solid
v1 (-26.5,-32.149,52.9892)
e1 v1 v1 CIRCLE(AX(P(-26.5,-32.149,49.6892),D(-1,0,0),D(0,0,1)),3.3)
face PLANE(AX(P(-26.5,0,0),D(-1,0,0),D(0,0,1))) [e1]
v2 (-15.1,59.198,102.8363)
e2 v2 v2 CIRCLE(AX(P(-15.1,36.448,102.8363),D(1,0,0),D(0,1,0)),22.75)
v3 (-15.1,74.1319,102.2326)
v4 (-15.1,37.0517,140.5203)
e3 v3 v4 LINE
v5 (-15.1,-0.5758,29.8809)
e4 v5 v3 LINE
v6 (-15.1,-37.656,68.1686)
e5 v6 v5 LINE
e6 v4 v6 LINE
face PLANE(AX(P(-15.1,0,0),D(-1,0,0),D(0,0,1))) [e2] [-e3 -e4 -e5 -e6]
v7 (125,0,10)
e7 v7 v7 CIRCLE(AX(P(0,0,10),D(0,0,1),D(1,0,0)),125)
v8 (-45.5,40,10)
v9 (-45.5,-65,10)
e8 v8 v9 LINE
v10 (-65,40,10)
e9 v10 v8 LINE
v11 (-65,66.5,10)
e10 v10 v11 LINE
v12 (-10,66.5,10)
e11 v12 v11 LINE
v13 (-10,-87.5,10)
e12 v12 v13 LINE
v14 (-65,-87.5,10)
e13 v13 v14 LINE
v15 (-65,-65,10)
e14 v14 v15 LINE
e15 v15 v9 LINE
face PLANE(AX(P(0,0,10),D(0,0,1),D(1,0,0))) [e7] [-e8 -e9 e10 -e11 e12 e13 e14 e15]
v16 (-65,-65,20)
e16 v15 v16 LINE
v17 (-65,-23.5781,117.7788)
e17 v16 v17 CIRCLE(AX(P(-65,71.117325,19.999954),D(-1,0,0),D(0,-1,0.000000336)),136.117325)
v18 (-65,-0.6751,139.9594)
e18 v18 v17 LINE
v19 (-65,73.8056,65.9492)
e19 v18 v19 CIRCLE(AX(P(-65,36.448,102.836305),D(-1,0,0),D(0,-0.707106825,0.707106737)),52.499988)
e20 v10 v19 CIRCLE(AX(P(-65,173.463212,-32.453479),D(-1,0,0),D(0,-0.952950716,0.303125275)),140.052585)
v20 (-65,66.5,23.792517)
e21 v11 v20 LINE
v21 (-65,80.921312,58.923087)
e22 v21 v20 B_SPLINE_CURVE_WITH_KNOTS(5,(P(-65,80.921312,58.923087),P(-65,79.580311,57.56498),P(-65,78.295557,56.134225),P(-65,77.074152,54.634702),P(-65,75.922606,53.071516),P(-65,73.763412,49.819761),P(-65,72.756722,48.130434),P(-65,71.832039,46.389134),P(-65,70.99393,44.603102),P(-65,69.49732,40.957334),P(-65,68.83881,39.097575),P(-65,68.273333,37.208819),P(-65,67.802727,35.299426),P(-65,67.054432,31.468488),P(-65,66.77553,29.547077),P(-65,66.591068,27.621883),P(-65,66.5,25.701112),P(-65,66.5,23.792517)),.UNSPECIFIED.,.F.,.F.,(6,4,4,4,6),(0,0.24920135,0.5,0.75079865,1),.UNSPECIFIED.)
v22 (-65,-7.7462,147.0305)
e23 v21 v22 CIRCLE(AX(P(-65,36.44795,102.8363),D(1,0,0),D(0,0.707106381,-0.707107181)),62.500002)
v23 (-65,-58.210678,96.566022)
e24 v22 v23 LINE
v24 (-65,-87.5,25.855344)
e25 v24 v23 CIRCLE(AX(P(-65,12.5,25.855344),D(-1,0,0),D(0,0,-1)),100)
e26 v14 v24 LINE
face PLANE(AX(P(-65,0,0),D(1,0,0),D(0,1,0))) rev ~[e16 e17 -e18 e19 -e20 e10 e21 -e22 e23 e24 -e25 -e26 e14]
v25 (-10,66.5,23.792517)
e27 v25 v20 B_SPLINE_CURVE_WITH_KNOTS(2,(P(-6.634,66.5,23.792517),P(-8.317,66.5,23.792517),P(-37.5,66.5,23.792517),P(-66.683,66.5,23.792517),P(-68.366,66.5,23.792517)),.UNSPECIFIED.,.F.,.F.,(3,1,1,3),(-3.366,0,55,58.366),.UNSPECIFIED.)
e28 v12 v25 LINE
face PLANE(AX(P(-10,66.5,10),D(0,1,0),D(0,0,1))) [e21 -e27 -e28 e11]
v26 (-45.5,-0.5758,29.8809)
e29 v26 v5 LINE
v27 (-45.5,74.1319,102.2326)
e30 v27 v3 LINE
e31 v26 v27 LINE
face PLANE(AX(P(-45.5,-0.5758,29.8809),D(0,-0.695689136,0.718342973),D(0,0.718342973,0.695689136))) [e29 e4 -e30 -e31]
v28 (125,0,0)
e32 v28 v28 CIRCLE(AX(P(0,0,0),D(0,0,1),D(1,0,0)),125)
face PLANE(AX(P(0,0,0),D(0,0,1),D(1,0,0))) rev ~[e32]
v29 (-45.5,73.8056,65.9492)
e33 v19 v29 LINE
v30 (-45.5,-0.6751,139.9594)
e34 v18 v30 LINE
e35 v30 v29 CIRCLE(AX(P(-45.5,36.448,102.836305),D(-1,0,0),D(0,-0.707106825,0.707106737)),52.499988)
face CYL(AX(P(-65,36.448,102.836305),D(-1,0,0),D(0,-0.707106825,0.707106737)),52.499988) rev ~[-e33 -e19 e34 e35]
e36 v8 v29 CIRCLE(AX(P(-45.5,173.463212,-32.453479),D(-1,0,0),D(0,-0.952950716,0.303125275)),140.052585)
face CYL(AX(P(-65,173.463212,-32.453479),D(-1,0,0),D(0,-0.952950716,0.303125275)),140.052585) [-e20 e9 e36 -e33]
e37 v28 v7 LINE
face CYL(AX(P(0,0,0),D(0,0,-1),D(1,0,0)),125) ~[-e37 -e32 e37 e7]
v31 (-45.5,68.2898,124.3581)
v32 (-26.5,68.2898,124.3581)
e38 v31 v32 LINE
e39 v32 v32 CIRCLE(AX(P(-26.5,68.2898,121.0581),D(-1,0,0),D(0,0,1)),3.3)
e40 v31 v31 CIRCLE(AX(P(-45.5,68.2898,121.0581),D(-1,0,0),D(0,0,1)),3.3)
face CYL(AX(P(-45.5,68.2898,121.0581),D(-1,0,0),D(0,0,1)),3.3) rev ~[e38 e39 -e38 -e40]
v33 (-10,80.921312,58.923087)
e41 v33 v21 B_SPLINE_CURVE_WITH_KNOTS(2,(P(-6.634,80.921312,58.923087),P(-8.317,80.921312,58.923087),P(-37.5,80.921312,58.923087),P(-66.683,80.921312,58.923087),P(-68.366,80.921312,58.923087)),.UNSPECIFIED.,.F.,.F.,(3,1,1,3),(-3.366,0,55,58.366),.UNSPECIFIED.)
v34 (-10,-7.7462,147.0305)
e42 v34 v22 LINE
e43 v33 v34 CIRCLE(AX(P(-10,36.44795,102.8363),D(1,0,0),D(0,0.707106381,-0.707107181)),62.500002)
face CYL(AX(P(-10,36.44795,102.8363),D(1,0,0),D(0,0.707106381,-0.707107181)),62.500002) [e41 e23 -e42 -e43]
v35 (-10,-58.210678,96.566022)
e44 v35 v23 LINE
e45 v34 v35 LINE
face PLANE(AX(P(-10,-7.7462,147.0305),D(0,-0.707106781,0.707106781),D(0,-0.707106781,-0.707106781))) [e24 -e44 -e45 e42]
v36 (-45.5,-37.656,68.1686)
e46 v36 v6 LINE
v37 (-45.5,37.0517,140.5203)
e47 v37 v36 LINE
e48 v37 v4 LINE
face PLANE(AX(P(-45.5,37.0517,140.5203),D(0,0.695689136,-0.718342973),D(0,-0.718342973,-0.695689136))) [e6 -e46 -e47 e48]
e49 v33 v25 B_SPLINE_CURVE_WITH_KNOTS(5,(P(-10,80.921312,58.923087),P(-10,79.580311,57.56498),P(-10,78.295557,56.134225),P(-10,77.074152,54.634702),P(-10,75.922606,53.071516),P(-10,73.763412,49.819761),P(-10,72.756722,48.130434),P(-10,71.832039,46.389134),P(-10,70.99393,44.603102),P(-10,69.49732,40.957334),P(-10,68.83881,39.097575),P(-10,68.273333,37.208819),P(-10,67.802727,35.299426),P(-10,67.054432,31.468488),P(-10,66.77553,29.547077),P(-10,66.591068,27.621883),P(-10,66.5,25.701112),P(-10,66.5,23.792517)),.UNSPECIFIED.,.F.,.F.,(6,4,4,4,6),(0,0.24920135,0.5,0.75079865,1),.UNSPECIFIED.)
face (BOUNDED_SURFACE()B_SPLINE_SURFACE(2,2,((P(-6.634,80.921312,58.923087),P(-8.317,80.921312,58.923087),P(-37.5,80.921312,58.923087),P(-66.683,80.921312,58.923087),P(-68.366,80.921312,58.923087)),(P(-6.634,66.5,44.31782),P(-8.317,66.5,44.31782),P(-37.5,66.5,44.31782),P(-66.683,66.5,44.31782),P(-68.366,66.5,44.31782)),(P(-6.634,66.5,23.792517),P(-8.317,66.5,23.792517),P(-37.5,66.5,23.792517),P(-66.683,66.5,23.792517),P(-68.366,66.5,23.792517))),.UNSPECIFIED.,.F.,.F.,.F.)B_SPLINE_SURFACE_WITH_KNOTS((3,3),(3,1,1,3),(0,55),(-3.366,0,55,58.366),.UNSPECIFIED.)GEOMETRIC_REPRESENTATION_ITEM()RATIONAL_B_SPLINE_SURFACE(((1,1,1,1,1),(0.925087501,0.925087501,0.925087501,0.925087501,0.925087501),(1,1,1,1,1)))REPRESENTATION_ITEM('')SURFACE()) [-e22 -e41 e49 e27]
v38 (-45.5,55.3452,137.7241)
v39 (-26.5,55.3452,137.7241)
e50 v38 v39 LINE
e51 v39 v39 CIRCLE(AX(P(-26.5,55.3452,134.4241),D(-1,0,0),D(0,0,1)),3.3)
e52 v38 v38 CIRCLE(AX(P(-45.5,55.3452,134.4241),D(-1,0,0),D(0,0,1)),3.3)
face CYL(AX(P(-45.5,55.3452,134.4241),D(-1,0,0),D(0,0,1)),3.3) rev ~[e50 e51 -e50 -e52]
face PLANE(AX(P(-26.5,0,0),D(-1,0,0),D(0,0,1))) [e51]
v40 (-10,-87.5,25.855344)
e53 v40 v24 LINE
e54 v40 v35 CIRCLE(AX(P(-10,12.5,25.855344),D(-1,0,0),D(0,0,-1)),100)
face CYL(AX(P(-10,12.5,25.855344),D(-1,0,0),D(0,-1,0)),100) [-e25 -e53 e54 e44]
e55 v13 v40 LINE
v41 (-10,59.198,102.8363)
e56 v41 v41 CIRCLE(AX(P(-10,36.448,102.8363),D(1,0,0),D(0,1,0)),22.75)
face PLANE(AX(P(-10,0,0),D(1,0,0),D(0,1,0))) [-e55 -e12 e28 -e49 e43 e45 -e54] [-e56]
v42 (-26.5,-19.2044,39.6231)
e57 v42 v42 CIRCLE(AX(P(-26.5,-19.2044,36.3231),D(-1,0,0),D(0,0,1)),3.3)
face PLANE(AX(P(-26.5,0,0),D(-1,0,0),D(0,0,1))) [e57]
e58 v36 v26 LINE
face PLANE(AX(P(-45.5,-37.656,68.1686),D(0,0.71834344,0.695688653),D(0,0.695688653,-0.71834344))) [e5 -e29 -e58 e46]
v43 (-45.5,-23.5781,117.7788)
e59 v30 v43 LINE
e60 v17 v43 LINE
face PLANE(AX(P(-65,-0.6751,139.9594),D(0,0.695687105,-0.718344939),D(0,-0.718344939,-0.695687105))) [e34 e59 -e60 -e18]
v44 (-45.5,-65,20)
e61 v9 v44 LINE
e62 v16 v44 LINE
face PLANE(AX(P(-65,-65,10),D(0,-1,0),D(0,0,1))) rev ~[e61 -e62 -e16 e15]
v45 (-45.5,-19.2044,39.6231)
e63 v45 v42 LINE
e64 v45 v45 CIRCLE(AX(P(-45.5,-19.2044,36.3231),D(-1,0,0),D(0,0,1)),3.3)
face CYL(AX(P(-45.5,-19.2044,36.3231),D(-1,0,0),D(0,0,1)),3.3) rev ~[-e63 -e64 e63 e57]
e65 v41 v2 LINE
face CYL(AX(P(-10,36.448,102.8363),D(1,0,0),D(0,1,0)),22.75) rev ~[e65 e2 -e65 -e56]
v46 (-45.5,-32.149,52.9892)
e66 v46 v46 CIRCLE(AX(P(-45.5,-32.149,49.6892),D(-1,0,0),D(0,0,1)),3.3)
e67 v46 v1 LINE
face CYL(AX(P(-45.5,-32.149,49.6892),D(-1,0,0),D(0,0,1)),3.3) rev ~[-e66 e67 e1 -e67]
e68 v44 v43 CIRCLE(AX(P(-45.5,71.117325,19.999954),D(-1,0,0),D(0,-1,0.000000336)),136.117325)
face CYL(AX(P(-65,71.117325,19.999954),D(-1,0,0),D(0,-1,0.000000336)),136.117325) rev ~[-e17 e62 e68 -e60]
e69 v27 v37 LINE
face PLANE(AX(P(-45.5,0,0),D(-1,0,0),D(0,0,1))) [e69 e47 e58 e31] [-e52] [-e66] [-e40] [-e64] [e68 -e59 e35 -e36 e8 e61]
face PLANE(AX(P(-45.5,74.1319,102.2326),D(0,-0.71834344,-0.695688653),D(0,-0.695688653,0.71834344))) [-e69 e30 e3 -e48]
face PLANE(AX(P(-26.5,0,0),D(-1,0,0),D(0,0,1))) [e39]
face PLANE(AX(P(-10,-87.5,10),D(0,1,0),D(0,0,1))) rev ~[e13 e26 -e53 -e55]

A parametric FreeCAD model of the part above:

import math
import FreeCAD as App
import Part
import Sketcher

V = App.Vector
Q = App.Units.Quantity


def edges_at(feature, points):
    """Names of the edges that pass closest to the given points."""
    edges = feature.Shape.Edges
    near = lambda p: min(range(len(edges)), key=lambda i: edges[i].distToShape(Part.Vertex(*p))[0])
    return sorted({f"Edge{near(p) + 1}" for p in points})


def add_polygon(sketch, points):
    """Adds a closed chain of lines whose ends are joined by coincident constraints."""
    first, n = sketch.GeometryCount, len(points)
    for a, b in zip(points, points[1:] + points[:1]):
        sketch.addGeometry(Part.LineSegment(App.Vector(*a, 0), App.Vector(*b, 0)), False)
    for i in range(n):
        sketch.addConstraint(Sketcher.Constraint("Coincident", first + i, 2, first + (i + 1) % n, 1))

doc = App.newDocument("Part")
params = doc.addObject("Spreadsheet::Sheet", "Params")
for row, (alias, value) in enumerate([
    ("sketch1_diameter", "250 mm"),
    ("pad1_length", "10 mm"),
    ("sketch2_diameter", "45.5 mm"),
    ("sketch2_radius", "62.5 mm"),
    ("sketch2_length", "20 mm"),
    ("sketch2_height", "34.5 mm"),
    ("pad2_length", "55 mm"),
    ("fillet_radius", "100 mm"),
    ("fillet2_radius", "50 mm"),
    ("sketch3_height", "10 mm"),
    ("sketch3_radius", "52.5 mm"),
    ("pocket1_length", "19.5 mm"),
    ("sketch4_length", "104 mm"),
    ("sketch4_length2", "53.3 mm"),
    ("pocket2_length", "30.4 mm"),
    ("sketch5_diameter", "6.6 mm"),
    ("pocket3_length", "19 mm"),
], start=1):
    params.set(f"A{row}", alias)
    params.set(f"B{row}", "=" + value)
    params.setAlias(f"B{row}", alias)

body = doc.addObject("PartDesign::Body", "Body")

# Sketch on XY plane
sketch1 = body.newObject("Sketcher::SketchObject", "Sketch")
sketch1.AttachmentSupport = (doc.getObject("XY_Plane"), [""])
sketch1.MapMode = "FlatFace"
sketch1.addGeometry(Part.Circle(V(0, 0, 0), V(0, 0, 1), 125), False)
sketch1.addConstraint([
    Sketcher.Constraint("Coincident", 0, 3, -1, 1),
    Sketcher.Constraint("Diameter", 0, Q("250 mm")),
])
sketch1.setExpression("Constraints[1]", "Params.sketch1_diameter")
pad1 = body.newObject("PartDesign::Pad", "Pad")
pad1.Profile = sketch1
pad1.setExpression("Length", "Params.pad1_length")

# Sketch on YZ plane
sketch2 = body.newObject("Sketcher::SketchObject", "Sketch001")
sketch2.AttachmentSupport = (doc.getObject("YZ_Plane"), [""])
sketch2.MapMode = "FlatFace"
sketch2.AttachmentOffset = App.Placement(V(0, 0, -10), App.Rotation())
sketch2.addGeometry([
    Part.LineSegment(V(-88, 10, 0), V(66, 10, 0)),  # 0
    Part.LineSegment(V(66, 10, 0), V(66, 44, 0)),  # 1
    Part.LineSegment(V(66, 44, 0), V(81, 59, 0)),  # 2
    Part.ArcOfCircle(Part.Circle(V(36, 103, 0), V(0, 0, 1), 62), math.radians(-45), math.radians(135)),  # 3
    Part.LineSegment(V(-8, 147, 0), V(-88, 67, 0)),  # 4
    Part.LineSegment(V(-88, 67, 0), V(-88, 10, 0)),  # 5
    Part.Circle(V(36, 103, 0), V(0, 0, 1), 23),  # 6
], False)
sketch2.addConstraint([
    Sketcher.Constraint("Coincident", 0, 2, 1, 1),
    Sketcher.Constraint("Coincident", 1, 2, 2, 1),
    Sketcher.Constraint("Tangent", 2, 2, 3, 1),
    Sketcher.Constraint("Tangent", 3, 2, 4, 1),
    Sketcher.Constraint("Coincident", 4, 2, 5, 1),
    Sketcher.Constraint("Coincident", 5, 2, 0, 1),
    Sketcher.Constraint("Horizontal", 0),
    Sketcher.Constraint("Vertical", 1),
    Sketcher.Constraint("Vertical", 5),
    Sketcher.Constraint("Coincident", 6, 3, 3, 3),
    Sketcher.Constraint("Parallel", 2, 4),
    Sketcher.Constraint("Diameter", 6, Q("45.5 mm")),
    Sketcher.Constraint("Radius", 3, Q("62.5 mm")),
    Sketcher.Constraint("Angle", 2, Q("45 deg")),
    Sketcher.Constraint("Distance", 2, Q("20 mm")),
    Sketcher.Constraint("DistanceY", 1, 1, 1, 2, Q("34.5 mm")),
    Sketcher.Constraint("DistanceX", -1, 1, 0, 2, Q("66.5 mm")),
    Sketcher.Constraint("DistanceX", 4, 2, -1, 1, Q("87.5 mm")),
    Sketcher.Constraint("DistanceY", -1, 1, 0, 2, Q("10 mm")),
])
sketch2.setExpression("Constraints[11]", "Params.sketch2_diameter")
sketch2.setExpression("Constraints[12]", "Params.sketch2_radius")
sketch2.setExpression("Constraints[14]", "Params.sketch2_length")
sketch2.setExpression("Constraints[15]", "Params.sketch2_height")
pad2 = body.newObject("PartDesign::Pad", "Pad001")
pad2.Profile = sketch2
pad2.setExpression("Length", "Params.pad2_length")
pad2.Reversed = True
doc.recompute()

fillet = body.newObject("PartDesign::Fillet", "Fillet")
fillet.Base = (pad2, edges_at(pad2, [(-37.5, -87.5, 67.277)]))
fillet.setExpression("Radius", "Params.fillet_radius")
doc.recompute()

fillet2 = body.newObject("PartDesign::Fillet", "Fillet001")
fillet2.Base = (fillet, edges_at(fillet, [(-37.5, 66.5, 44.5)]))
fillet2.setExpression("Radius", "Params.fillet2_radius")

# Sketch on YZ plane
sketch3 = body.newObject("Sketcher::SketchObject", "Sketch002")
sketch3.AttachmentSupport = (doc.getObject("YZ_Plane"), [""])
sketch3.MapMode = "FlatFace"
sketch3.AttachmentOffset = App.Placement(V(0, 0, -65), App.Rotation())
sketch3.addGeometry([
    Part.LineSegment(V(40, 10, 0), V(-65, 10, 0)),  # 0
    Part.LineSegment(V(-65, 10, 0), V(-65, 20, 0)),  # 1
    Part.ArcOfCircle(Part.Circle(V(71, 20, 0), V(0, 0, 1), 136), math.radians(134), math.radians(180)),  # 2
    Part.LineSegment(V(-24, 118, 0), V(-1, 140, 0)),  # 3
    Part.ArcOfCircle(Part.Circle(V(36, 103, 0), V(0, 0, 1), 52), math.radians(-45), math.radians(135)),  # 4
    Part.ArcOfCircle(Part.Circle(V(173, -32, 0), V(0, 0, 1), 140), math.radians(135), math.radians(162)),  # 5
], False)
sketch3.addConstraint([
    Sketcher.Constraint("Coincident", 0, 2, 1, 1),
    Sketcher.Constraint("Tangent", 1, 2, 2, 2),
    Sketcher.Constraint("Tangent", 2, 1, 3, 1),
    Sketcher.Constraint("Coincident", 3, 2, 4, 2),
    Sketcher.Constraint("Tangent", 4, 1, 5, 1),
    Sketcher.Constraint("Coincident", 5, 2, 0, 1),
    Sketcher.Constraint("Horizontal", 0),
    Sketcher.Constraint("Vertical", 1),
    Sketcher.Constraint("DistanceY", 1, 1, 1, 2, Q("10 mm")),
    Sketcher.Constraint("DistanceX", 0, 2, -1, 1, Q("65 mm")),
    Sketcher.Constraint("DistanceY", -1, 1, 0, 2, Q("10 mm")),
    Sketcher.Constraint("DistanceX", -1, 1, 5, 2, Q("40 mm")),
    Sketcher.Constraint("Radius", 4, Q("52.5 mm")),
    Sketcher.Constraint("Radius", 2, Q("136.117 mm")),
    Sketcher.Constraint("Radius", 5, Q("140.053 mm")),
    Sketcher.Constraint("DistanceY", 5, 3, 4, 3, Q("135.29 mm")),
    Sketcher.Constraint("Distance", 3, Q("31.883 mm")),
    Sketcher.Constraint("DistanceX", -1, 1, 4, 3, Q("36.448 mm")),
])
sketch3.setExpression("Constraints[8]", "Params.sketch3_height")
sketch3.setExpression("Constraints[12]", "Params.sketch3_radius")
pocket1 = body.newObject("PartDesign::Pocket", "Pocket")
pocket1.Profile = sketch3
pocket1.setExpression("Length", "Params.pocket1_length")
pocket1.Reversed = True

# Sketch on YZ plane
sketch4 = body.newObject("Sketcher::SketchObject", "Sketch003")
sketch4.AttachmentSupport = (doc.getObject("YZ_Plane"), [""])
sketch4.MapMode = "FlatFace"
sketch4.AttachmentOffset = App.Placement(V(0, 0, -45.5), App.Rotation())
add_polygon(sketch4, [(-38, 68), (37, 141), (74, 102), (-1, 30)])  # lines 0-3
sketch4.addConstraint([
    Sketcher.Constraint("Perpendicular", 0, 1),
    Sketcher.Constraint("Perpendicular", 1, 2),
    Sketcher.Constraint("Perpendicular", 2, 3),
    Sketcher.Constraint("Distance", 0, Q("104 mm")),
    Sketcher.Constraint("Distance", 1, Q("53.3 mm")),
    Sketcher.Constraint("DistanceX", -1, 1, 1, 2, Q("74.132 mm")),
    Sketcher.Constraint("DistanceY", -1, 1, 2, 2, Q("29.881 mm")),
    Sketcher.Constraint("DistanceX", 3, 2, -1, 1, Q("37.656 mm")),
])
sketch4.setExpression("Constraints[7]", "Params.sketch4_length")
sketch4.setExpression("Constraints[8]", "Params.sketch4_length2")
pocket2 = body.newObject("PartDesign::Pocket", "Pocket001")
pocket2.Profile = sketch4
pocket2.setExpression("Length", "Params.pocket2_length")
pocket2.Reversed = True

# Sketch on YZ plane
sketch5 = body.newObject("Sketcher::SketchObject", "Sketch004")
sketch5.AttachmentSupport = (doc.getObject("YZ_Plane"), [""])
sketch5.MapMode = "FlatFace"
sketch5.AttachmentOffset = App.Placement(V(0, 0, -45.5), App.Rotation())
sketch5.addGeometry([
    Part.Circle(V(55.3, 134.4, 0), V(0, 0, 1), 3.3),
    Part.Circle(V(68.3, 121.1, 0), V(0, 0, 1), 3.3),
    Part.Circle(V(-32.1, 49.7, 0), V(0, 0, 1), 3.3),
    Part.Circle(V(-19.2, 36.3, 0), V(0, 0, 1), 3.3),
], False)
sketch5.addConstraint([
    Sketcher.Constraint("Equal", 0, 1),
    Sketcher.Constraint("Equal", 1, 2),
    Sketcher.Constraint("Equal", 2, 3),
    Sketcher.Constraint("Diameter", 0, Q("6.6 mm")),
    Sketcher.Constraint("DistanceY", -1, 1, 0, 3, Q("134.424 mm")),
    Sketcher.Constraint("DistanceY", -1, 1, 1, 3, Q("121.058 mm")),
    Sketcher.Constraint("DistanceX", 2, 3, -1, 1, Q("32.149 mm")),
    Sketcher.Constraint("DistanceY", -1, 1, 3, 3, Q("36.323 mm")),
    Sketcher.Constraint("DistanceY", 2, 3, 0, 3, Q("84.735 mm")),
    Sketcher.Constraint("DistanceX", -1, 1, 0, 3, Q("55.3452 mm")),
    Sketcher.Constraint("DistanceX", -1, 1, 1, 3, Q("68.2898 mm")),
    Sketcher.Constraint("DistanceX", 3, 3, -1, 1, Q("19.2044 mm")),
])
sketch5.setExpression("Constraints[3]", "Params.sketch5_diameter")
pocket3 = body.newObject("PartDesign::Pocket", "Pocket002")
pocket3.Profile = sketch5
pocket3.setExpression("Length", "Params.pocket3_length")
pocket3.Reversed = True

doc.recompute()
